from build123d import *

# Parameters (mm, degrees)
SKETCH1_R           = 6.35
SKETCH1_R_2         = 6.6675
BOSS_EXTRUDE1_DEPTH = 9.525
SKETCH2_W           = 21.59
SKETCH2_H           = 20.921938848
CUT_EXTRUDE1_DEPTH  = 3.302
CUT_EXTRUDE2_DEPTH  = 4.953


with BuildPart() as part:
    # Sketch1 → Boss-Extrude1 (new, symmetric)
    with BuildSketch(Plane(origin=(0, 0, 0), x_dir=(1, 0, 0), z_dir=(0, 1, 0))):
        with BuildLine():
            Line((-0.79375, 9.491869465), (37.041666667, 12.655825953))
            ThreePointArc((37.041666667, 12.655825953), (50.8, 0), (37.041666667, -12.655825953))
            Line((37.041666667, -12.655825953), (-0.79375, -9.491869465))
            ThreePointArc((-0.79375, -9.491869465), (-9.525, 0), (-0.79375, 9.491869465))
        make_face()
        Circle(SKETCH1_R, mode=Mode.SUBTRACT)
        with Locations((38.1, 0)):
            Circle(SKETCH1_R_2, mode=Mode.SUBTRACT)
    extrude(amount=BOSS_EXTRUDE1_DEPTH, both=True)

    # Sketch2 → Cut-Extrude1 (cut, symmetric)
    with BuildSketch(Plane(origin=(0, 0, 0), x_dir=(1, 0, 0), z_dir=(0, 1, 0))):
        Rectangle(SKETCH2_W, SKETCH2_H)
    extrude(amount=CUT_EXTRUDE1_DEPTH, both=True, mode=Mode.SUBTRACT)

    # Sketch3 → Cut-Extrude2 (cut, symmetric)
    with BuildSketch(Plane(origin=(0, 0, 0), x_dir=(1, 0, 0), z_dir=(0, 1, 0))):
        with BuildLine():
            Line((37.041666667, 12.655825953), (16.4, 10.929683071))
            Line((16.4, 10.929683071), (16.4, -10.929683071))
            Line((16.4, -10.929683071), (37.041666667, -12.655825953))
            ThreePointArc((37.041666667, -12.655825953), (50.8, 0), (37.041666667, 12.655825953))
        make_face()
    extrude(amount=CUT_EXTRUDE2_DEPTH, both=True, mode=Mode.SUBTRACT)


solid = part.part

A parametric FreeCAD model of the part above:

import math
import FreeCAD as App
import Part
import Sketcher

V = App.Vector
Q = App.Units.Quantity

doc = App.newDocument("Part")
body = doc.addObject("PartDesign::Body", "Body")

sketch1 = body.newObject("Sketcher::SketchObject", "Sketch")
sketch1.AttachmentSupport = (doc.getObject("XZ_Plane"), [""])
sketch1.MapMode = "FlatFace"
sketch1.addGeometry([
    Part.LineSegment(V(37, -13, 0), V(-1, -9, 0)),
    Part.ArcOfCircle(Part.Circle(V(0, 0, 0), V(0, 0, 1), 10), math.radians(95), math.radians(265)),
    Part.LineSegment(V(-1, 9, 0), V(37, 13, 0)),
    Part.ArcOfCircle(Part.Circle(V(38, 0, 0), V(0, 0, 1), 13), math.radians(-95), math.radians(95)),
    Part.Circle(V(38, 0, 0), V(0, 0, 1), 7),
    Part.Circle(V(0, 0, 0), V(0, 0, 1), 6),
], False)
sketch1.addConstraint([
    Sketcher.Constraint("Tangent", 0, 2, 1, 2),
    Sketcher.Constraint("Tangent", 1, 1, 2, 1),
    Sketcher.Constraint("Tangent", 2, 2, 3, 2),
    Sketcher.Constraint("Tangent", 3, 1, 0, 1),
    Sketcher.Constraint("Coincident", 1, 3, -1, 1),
    Sketcher.Constraint("Coincident", 5, 3, -1, 1),
    Sketcher.Constraint("Coincident", 4, 3, 3, 3),
    Sketcher.Constraint("PointOnObject", 3, 3, -1),
    Sketcher.Constraint("Diameter", 5, Q("0.5 in")),
    Sketcher.Constraint("Radius", 3, Q("0.5 in")),
    Sketcher.Constraint("Diameter", 4, Q("0.525 in")),
    Sketcher.Constraint("Radius", 1, Q("0.375 in")),
    Sketcher.Constraint("DistanceX", -1, 1, 3, 3, Q("1.5 in")),
])
pad1 = body.newObject("PartDesign::Pad", "Pad")
pad1.Profile = sketch1
pad1.Length = Q("0.75 in")
pad1.Midplane = True

sketch2 = body.newObject("Sketcher::SketchObject", "Sketch001")
sketch2.AttachmentSupport = (doc.getObject("XZ_Plane"), [""])
sketch2.MapMode = "FlatFace"
sketch2.addGeometry([
    Part.LineSegment(V(-11, -10, 0), V(-11, 10, 0)),
    Part.LineSegment(V(-11, 10, 0), V(11, 10, 0)),
    Part.LineSegment(V(11, 10, 0), V(11, -10, 0)),
    Part.LineSegment(V(11, -10, 0), V(-11, -10, 0)),
], False)
sketch2.addConstraint([
    Sketcher.Constraint("Coincident", 0, 2, 1, 1),
    Sketcher.Constraint("Coincident", 1, 2, 2, 1),
    Sketcher.Constraint("Coincident", 2, 2, 3, 1),
    Sketcher.Constraint("Coincident", 3, 2, 0, 1),
    Sketcher.Constraint("Vertical", 0),
    Sketcher.Constraint("Horizontal", 1),
    Sketcher.Constraint("Vertical", 2),
    Sketcher.Constraint("Horizontal", 3),
    Sketcher.Constraint("Symmetric", 0, 2, 2, 2, -1, 1),
    Sketcher.Constraint("DistanceX", 1, 1, 1, 2, Q("0.85 in")),
    Sketcher.Constraint("DistanceY", 0, 1, 0, 2, 20.921939),
])
pocket1 = body.newObject("PartDesign::Pocket", "Pocket")
pocket1.Profile = sketch2
pocket1.Length = Q("0.26 in")
pocket1.Midplane = True

sketch3 = body.newObject("Sketcher::SketchObject", "Sketch002")
sketch3.AttachmentSupport = (doc.getObject("XZ_Plane"), [""])
sketch3.MapMode = "FlatFace"
sketch3.addGeometry([
    Part.LineSegment(V(37, -13, 0), V(16, -11, 0)),
    Part.LineSegment(V(16, -11, 0), V(16, 11, 0)),
    Part.LineSegment(V(16, 11, 0), V(37, 13, 0)),
    Part.ArcOfCircle(Part.Circle(V(38, 0, 0), V(0, 0, 1), 13), math.radians(-95), math.radians(95)),
], False)
sketch3.addConstraint([
    Sketcher.Constraint("Coincident", 0, 2, 1, 1),
    Sketcher.Constraint("Coincident", 1, 2, 2, 1),
    Sketcher.Constraint("Tangent", 2, 2, 3, 2),
    Sketcher.Constraint("Tangent", 3, 1, 0, 1),
    Sketcher.Constraint("Vertical", 1),
    Sketcher.Constraint("Symmetric", 2, 2, 3, 1, -1),
    Sketcher.Constraint("Radius", 3, Q("0.5 in")),
    Sketcher.Constraint("DistanceX", -1, 1, 3, 3, Q("1.5 in")),
    Sketcher.Constraint("DistanceX", -1, 1, 0, 2, 16.4),
    Sketcher.Constraint("DistanceY", 1, 1, 1, 2, 21.859366),
])
pocket2 = body.newObject("PartDesign::Pocket", "Pocket001")
pocket2.Profile = sketch3
pocket2.Length = Q("0.39 in")
pocket2.Midplane = True

doc.recompute()
